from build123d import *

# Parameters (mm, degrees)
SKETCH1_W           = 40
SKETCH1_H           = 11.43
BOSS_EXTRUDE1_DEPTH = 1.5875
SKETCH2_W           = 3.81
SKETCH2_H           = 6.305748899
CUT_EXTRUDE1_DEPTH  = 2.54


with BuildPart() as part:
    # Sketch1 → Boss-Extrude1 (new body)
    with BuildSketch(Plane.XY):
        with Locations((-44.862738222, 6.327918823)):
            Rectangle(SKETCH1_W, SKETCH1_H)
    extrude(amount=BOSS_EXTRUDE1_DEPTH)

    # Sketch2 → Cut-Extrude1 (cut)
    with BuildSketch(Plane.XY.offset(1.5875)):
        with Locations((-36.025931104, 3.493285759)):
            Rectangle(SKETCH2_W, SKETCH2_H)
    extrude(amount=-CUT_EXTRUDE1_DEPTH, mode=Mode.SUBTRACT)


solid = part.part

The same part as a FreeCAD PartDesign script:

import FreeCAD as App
import Part
import Sketcher
from FreeCAD import Vector
Q = App.Units.Quantity


def add_polygon(sketch, points):
    """Adds a closed chain of lines whose ends are joined by coincident constraints."""
    first, n = sketch.GeometryCount, len(points)
    for a, b in zip(points, points[1:] + points[:1]):
        sketch.addGeometry(Part.LineSegment(App.Vector(*a, 0), App.Vector(*b, 0)), False)
    for i in range(n):
        sketch.addConstraint(Sketcher.Constraint("Coincident", first + i, 2, first + (i + 1) % n, 1))

doc = App.newDocument("Part")
body = doc.addObject("PartDesign::Body", "Body")

# Sketch on XY plane
sketch1 = body.newObject("Sketcher::SketchObject", "Sketch")
sketch1.AttachmentSupport = (doc.getObject("XY_Plane"), [""])
sketch1.MapMode = "FlatFace"
add_polygon(sketch1, [(-65, 12), (-65, 1), (-25, 1), (-25, 12)])  # lines 0-3
sketch1.addConstraint([
    Sketcher.Constraint("Vertical", 0),
    Sketcher.Constraint("Horizontal", 1),
    Sketcher.Constraint("Vertical", 2),
    Sketcher.Constraint("Horizontal", 3),
    Sketcher.Constraint("DistanceY", 0, 2, 0, 1, Q("0.45 in")),
    Sketcher.Constraint("DistanceX", 1, 1, 1, 2, Q("40 mm")),
    Sketcher.Constraint("DistanceX", 0, 2, -1, 1, Q("64.862738 mm")),
    Sketcher.Constraint("DistanceY", -1, 1, 0, 2, Q("0.612919 mm")),
])
pad1 = body.newObject("PartDesign::Pad", "Pad")
pad1.Profile = sketch1
pad1.Length = Q("0.0625 in")

# Sketch on XY plane
sketch2 = body.newObject("Sketcher::SketchObject", "Sketch001")
sketch2.AttachmentSupport = (doc.getObject("XY_Plane"), [""])
sketch2.MapMode = "FlatFace"
sketch2.AttachmentOffset = App.Placement(Vector(0, 0, 0.0625 * 25.4), App.Rotation())
add_polygon(sketch2, [(-37.9, 6.6), (-37.9, 0.3), (-34.1, 0.3), (-34.1, 6.6)])  # lines 0-3
sketch2.addConstraint([
    Sketcher.Constraint("Vertical", 0),
    Sketcher.Constraint("Horizontal", 1),
    Sketcher.Constraint("Vertical", 2),
    Sketcher.Constraint("Horizontal", 3),
    Sketcher.Constraint("DistanceX", 1, 1, 1, 2, Q("0.15 in")),
    Sketcher.Constraint("DistanceY", 0, 2, 0, 1, Q("6.305749 mm")),
    Sketcher.Constraint("DistanceX", 0, 2, -1, 1, Q("37.930931 mm")),
    Sketcher.Constraint("DistanceY", -1, 1, 0, 2, Q("0.340411 mm")),
])
pocket1 = body.newObject("PartDesign::Pocket", "Pocket")
pocket1.Profile = sketch2
pocket1.Length = Q("0.1 in")

doc.recompute()
